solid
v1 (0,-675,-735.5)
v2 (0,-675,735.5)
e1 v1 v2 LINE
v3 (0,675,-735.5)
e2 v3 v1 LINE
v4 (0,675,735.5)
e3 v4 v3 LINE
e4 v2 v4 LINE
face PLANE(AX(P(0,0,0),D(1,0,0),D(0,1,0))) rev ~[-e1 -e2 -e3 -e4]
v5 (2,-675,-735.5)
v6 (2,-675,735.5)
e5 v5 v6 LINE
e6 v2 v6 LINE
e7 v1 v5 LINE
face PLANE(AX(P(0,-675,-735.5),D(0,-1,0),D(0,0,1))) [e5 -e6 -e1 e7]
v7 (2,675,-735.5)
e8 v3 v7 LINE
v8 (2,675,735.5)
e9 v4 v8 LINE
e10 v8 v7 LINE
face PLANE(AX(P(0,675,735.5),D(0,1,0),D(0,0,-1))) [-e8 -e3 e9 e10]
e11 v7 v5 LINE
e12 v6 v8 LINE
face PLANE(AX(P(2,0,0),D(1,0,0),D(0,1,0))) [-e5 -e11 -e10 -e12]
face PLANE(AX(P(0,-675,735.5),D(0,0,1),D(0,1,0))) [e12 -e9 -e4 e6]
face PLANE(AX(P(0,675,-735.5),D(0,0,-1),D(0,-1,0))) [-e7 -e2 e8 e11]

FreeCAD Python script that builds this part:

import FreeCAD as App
import Part
import Sketcher

V = App.Vector
Q = App.Units.Quantity


def add_polygon(sketch, points):
    """Adds a closed chain of lines whose ends are joined by coincident constraints."""
    first, n = sketch.GeometryCount, len(points)
    for a, b in zip(points, points[1:] + points[:1]):
        sketch.addGeometry(Part.LineSegment(App.Vector(*a, 0), App.Vector(*b, 0)), False)
    for i in range(n):
        sketch.addConstraint(Sketcher.Constraint("Coincident", first + i, 2, first + (i + 1) % n, 1))

doc = App.newDocument("Part")
params = doc.addObject("Spreadsheet::Sheet", "Params")
for row, (alias, value) in enumerate([
    ("sketch1_width", "1350 mm"),
    ("sketch1_height", "1471 mm"),
    ("pad1_length", "2 mm"),
], start=1):
    params.set(f"A{row}", alias)
    params.set(f"B{row}", "=" + value)
    params.setAlias(f"B{row}", alias)

body = doc.addObject("PartDesign::Body", "Body")

sketch1 = body.newObject("Sketcher::SketchObject", "Sketch")
sketch1.AttachmentSupport = (doc.getObject("YZ_Plane"), [""])
sketch1.MapMode = "FlatFace"
add_polygon(sketch1, [(675, 735.5), (-675, 735.5), (-675, -735.5), (675, -735.5)])
sketch1.addConstraint([
    Sketcher.Constraint("Horizontal", 0),
    Sketcher.Constraint("Vertical", 1),
    Sketcher.Constraint("Horizontal", 2),
    Sketcher.Constraint("Vertical", 3),
    Sketcher.Constraint("Symmetric", 0, 2, 2, 2, -1, 1),
    Sketcher.Constraint("DistanceX", 0, 2, 0, 1, Q("1350 mm")),
    Sketcher.Constraint("DistanceY", 1, 2, 1, 1, Q("1471 mm")),
])
sketch1.setExpression("Constraints[9]", "Params.sketch1_width")
sketch1.setExpression("Constraints[10]", "Params.sketch1_height")
pad1 = body.newObject("PartDesign::Pad", "Pad")
pad1.Profile = sketch1
pad1.setExpression("Length", "Params.pad1_length")

doc.recompute()
